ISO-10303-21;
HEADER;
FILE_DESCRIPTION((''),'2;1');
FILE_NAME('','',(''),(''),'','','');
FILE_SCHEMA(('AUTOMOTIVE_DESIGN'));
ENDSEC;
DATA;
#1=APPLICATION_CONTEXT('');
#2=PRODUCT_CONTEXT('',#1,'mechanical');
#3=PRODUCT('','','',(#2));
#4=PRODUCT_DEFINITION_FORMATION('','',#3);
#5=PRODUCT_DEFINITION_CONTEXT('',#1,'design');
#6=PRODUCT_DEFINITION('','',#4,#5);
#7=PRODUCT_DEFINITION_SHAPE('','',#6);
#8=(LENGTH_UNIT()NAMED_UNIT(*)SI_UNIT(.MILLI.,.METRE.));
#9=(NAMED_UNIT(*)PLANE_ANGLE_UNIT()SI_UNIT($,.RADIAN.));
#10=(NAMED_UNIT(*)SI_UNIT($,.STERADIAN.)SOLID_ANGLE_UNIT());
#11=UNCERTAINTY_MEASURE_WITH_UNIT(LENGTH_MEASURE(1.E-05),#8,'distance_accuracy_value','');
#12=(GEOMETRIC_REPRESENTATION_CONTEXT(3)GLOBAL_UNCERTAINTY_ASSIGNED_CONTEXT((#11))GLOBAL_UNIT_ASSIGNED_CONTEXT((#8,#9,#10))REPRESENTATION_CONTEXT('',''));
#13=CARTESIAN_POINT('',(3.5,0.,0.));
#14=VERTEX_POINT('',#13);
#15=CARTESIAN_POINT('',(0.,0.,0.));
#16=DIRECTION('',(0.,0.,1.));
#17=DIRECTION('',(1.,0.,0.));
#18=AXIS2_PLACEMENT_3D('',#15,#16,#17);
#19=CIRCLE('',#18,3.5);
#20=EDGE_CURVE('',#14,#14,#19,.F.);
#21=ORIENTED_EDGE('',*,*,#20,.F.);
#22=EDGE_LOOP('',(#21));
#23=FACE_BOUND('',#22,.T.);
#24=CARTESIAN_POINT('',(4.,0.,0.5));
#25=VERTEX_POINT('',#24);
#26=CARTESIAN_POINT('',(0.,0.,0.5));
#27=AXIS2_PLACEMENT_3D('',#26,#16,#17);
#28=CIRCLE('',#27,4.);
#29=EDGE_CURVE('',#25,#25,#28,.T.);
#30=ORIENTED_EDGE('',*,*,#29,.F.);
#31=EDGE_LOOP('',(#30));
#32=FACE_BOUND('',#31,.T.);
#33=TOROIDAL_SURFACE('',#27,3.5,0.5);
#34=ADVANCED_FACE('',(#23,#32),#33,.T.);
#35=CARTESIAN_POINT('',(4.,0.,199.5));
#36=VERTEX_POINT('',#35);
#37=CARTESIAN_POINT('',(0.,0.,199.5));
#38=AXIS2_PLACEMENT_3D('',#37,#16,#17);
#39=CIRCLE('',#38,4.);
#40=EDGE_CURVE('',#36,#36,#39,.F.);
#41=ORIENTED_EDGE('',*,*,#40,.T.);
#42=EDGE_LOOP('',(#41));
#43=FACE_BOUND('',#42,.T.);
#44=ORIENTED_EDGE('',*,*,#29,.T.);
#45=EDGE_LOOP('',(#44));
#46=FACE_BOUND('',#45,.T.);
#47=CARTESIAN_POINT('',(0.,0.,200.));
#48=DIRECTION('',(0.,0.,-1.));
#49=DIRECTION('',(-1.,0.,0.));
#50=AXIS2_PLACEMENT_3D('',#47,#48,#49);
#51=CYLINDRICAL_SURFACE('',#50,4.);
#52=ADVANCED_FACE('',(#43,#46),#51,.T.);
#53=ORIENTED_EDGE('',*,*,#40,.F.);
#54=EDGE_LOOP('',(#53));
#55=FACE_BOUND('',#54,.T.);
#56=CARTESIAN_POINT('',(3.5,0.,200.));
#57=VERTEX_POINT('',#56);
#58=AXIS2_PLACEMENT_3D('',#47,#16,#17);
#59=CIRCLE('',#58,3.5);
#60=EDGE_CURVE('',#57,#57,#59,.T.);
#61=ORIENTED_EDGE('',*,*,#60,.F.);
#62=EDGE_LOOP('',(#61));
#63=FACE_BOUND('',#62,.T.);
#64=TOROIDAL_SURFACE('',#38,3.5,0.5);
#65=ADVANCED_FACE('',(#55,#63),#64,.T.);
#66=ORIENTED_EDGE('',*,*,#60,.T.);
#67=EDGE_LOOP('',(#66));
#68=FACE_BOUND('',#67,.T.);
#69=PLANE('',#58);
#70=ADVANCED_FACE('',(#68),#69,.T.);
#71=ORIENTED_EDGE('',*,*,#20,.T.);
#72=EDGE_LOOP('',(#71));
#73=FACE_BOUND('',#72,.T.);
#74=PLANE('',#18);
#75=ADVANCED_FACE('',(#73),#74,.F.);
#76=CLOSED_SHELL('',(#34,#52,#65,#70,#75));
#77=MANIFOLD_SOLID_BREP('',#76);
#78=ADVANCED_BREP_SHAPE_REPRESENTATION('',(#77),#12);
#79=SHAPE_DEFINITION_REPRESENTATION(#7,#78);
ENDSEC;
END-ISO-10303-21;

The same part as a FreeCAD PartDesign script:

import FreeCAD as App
import Part
import Sketcher
Q = App.Units.Quantity


def edges_at(feature, points):
    """Names of the edges that pass closest to the given points."""
    edges = feature.Shape.Edges
    near = lambda p: min(range(len(edges)), key=lambda i: edges[i].distToShape(Part.Vertex(*p))[0])
    return sorted({f"Edge{near(p) + 1}" for p in points})

doc = App.newDocument("Part")
body = doc.addObject("PartDesign::Body", "Body")

sketch1 = doc.addObject("Sketcher::SketchObject", "Sketch")
body.addObject(sketch1)
sketch1.AttachmentSupport = (doc.XY_Plane, [""])
sketch1.MapMode = "FlatFace"
sketch1.addGeometry(Part.Circle(App.Vector(0, 0, 0), App.Vector(0, 0, 1), 4), False)
sketch1.addConstraint(Sketcher.Constraint("Coincident", 0, 3, -1, 1))
sketch1.addConstraint(Sketcher.Constraint("Diameter", 0, Q("8 mm")))
pad1 = doc.addObject("PartDesign::Pad", "Pad")
body.addObject(pad1)
pad1.Profile = sketch1
pad1.Length = 200
doc.recompute()

fillet = doc.addObject("PartDesign::Fillet", "Fillet")
body.addObject(fillet)
fillet.Base = (pad1, edges_at(pad1, [(-4, 0, 0), (-4, 0, 200)]))
fillet.Radius = 0.5

doc.recompute()
